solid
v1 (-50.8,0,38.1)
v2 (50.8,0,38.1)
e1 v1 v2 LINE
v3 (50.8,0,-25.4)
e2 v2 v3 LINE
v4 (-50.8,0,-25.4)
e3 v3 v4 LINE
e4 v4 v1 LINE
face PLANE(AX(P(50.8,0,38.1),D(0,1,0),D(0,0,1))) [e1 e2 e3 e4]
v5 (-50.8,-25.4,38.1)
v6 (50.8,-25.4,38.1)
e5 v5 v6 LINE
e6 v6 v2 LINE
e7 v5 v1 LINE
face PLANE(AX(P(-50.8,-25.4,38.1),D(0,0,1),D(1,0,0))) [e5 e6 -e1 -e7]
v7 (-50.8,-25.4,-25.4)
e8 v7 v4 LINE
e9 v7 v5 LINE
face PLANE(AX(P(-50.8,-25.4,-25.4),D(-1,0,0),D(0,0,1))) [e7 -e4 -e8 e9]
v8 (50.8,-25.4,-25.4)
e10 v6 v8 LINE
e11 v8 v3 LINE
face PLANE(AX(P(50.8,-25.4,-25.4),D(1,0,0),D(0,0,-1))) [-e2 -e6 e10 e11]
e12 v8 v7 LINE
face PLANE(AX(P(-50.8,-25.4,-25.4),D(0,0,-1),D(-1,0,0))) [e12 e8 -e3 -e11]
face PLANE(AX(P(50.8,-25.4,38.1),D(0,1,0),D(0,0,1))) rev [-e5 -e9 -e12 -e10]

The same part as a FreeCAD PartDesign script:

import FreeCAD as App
import Part
import Sketcher

V = App.Vector
Q = App.Units.Quantity

doc = App.newDocument("Part")
body = doc.addObject("PartDesign::Body", "Body")

# Sketch on XZ plane
sketch1 = body.newObject("Sketcher::SketchObject", "Sketch")
sketch1.AttachmentSupport = (doc.getObject("XZ_Plane"), [""])
sketch1.MapMode = "FlatFace"
sketch1.addGeometry(Part.LineSegment(V(-50.8, -25.4, 0), V(-50.8, 38.1, 0)), False)
sketch1.addGeometry(Part.LineSegment(V(-50.8, 38.1, 0), V(50.8, 38.1, 0)), False)
sketch1.addGeometry(Part.LineSegment(V(50.8, 38.1, 0), V(50.8, -25.4, 0)), False)
sketch1.addGeometry(Part.LineSegment(V(50.8, -25.4, 0), V(-50.8, -25.4, 0)), False)
sketch1.addConstraint(Sketcher.Constraint("Coincident", 0, 2, 1, 1))
sketch1.addConstraint(Sketcher.Constraint("Coincident", 1, 2, 2, 1))
sketch1.addConstraint(Sketcher.Constraint("Coincident", 2, 2, 3, 1))
sketch1.addConstraint(Sketcher.Constraint("Coincident", 3, 2, 0, 1))
sketch1.addConstraint(Sketcher.Constraint("Vertical", 0))
sketch1.addConstraint(Sketcher.Constraint("Horizontal", 1))
sketch1.addConstraint(Sketcher.Constraint("Vertical", 2))
sketch1.addConstraint(Sketcher.Constraint("Horizontal", 3))
sketch1.addConstraint(Sketcher.Constraint("DistanceX", 1, 1, 1, 2, Q("4 in")))
sketch1.addConstraint(Sketcher.Constraint("DistanceY", 0, 1, 0, 2, Q("2.5 in")))
sketch1.addConstraint(Sketcher.Constraint("DistanceX", 0, 2, -1, 1, Q("2 in")))
sketch1.addConstraint(Sketcher.Constraint("DistanceY", 2, 2, -1, 1, Q("1 in")))
pad1 = body.newObject("PartDesign::Pad", "Pad")
pad1.Profile = sketch1
pad1.Length = Q("1 in")

doc.recompute()
